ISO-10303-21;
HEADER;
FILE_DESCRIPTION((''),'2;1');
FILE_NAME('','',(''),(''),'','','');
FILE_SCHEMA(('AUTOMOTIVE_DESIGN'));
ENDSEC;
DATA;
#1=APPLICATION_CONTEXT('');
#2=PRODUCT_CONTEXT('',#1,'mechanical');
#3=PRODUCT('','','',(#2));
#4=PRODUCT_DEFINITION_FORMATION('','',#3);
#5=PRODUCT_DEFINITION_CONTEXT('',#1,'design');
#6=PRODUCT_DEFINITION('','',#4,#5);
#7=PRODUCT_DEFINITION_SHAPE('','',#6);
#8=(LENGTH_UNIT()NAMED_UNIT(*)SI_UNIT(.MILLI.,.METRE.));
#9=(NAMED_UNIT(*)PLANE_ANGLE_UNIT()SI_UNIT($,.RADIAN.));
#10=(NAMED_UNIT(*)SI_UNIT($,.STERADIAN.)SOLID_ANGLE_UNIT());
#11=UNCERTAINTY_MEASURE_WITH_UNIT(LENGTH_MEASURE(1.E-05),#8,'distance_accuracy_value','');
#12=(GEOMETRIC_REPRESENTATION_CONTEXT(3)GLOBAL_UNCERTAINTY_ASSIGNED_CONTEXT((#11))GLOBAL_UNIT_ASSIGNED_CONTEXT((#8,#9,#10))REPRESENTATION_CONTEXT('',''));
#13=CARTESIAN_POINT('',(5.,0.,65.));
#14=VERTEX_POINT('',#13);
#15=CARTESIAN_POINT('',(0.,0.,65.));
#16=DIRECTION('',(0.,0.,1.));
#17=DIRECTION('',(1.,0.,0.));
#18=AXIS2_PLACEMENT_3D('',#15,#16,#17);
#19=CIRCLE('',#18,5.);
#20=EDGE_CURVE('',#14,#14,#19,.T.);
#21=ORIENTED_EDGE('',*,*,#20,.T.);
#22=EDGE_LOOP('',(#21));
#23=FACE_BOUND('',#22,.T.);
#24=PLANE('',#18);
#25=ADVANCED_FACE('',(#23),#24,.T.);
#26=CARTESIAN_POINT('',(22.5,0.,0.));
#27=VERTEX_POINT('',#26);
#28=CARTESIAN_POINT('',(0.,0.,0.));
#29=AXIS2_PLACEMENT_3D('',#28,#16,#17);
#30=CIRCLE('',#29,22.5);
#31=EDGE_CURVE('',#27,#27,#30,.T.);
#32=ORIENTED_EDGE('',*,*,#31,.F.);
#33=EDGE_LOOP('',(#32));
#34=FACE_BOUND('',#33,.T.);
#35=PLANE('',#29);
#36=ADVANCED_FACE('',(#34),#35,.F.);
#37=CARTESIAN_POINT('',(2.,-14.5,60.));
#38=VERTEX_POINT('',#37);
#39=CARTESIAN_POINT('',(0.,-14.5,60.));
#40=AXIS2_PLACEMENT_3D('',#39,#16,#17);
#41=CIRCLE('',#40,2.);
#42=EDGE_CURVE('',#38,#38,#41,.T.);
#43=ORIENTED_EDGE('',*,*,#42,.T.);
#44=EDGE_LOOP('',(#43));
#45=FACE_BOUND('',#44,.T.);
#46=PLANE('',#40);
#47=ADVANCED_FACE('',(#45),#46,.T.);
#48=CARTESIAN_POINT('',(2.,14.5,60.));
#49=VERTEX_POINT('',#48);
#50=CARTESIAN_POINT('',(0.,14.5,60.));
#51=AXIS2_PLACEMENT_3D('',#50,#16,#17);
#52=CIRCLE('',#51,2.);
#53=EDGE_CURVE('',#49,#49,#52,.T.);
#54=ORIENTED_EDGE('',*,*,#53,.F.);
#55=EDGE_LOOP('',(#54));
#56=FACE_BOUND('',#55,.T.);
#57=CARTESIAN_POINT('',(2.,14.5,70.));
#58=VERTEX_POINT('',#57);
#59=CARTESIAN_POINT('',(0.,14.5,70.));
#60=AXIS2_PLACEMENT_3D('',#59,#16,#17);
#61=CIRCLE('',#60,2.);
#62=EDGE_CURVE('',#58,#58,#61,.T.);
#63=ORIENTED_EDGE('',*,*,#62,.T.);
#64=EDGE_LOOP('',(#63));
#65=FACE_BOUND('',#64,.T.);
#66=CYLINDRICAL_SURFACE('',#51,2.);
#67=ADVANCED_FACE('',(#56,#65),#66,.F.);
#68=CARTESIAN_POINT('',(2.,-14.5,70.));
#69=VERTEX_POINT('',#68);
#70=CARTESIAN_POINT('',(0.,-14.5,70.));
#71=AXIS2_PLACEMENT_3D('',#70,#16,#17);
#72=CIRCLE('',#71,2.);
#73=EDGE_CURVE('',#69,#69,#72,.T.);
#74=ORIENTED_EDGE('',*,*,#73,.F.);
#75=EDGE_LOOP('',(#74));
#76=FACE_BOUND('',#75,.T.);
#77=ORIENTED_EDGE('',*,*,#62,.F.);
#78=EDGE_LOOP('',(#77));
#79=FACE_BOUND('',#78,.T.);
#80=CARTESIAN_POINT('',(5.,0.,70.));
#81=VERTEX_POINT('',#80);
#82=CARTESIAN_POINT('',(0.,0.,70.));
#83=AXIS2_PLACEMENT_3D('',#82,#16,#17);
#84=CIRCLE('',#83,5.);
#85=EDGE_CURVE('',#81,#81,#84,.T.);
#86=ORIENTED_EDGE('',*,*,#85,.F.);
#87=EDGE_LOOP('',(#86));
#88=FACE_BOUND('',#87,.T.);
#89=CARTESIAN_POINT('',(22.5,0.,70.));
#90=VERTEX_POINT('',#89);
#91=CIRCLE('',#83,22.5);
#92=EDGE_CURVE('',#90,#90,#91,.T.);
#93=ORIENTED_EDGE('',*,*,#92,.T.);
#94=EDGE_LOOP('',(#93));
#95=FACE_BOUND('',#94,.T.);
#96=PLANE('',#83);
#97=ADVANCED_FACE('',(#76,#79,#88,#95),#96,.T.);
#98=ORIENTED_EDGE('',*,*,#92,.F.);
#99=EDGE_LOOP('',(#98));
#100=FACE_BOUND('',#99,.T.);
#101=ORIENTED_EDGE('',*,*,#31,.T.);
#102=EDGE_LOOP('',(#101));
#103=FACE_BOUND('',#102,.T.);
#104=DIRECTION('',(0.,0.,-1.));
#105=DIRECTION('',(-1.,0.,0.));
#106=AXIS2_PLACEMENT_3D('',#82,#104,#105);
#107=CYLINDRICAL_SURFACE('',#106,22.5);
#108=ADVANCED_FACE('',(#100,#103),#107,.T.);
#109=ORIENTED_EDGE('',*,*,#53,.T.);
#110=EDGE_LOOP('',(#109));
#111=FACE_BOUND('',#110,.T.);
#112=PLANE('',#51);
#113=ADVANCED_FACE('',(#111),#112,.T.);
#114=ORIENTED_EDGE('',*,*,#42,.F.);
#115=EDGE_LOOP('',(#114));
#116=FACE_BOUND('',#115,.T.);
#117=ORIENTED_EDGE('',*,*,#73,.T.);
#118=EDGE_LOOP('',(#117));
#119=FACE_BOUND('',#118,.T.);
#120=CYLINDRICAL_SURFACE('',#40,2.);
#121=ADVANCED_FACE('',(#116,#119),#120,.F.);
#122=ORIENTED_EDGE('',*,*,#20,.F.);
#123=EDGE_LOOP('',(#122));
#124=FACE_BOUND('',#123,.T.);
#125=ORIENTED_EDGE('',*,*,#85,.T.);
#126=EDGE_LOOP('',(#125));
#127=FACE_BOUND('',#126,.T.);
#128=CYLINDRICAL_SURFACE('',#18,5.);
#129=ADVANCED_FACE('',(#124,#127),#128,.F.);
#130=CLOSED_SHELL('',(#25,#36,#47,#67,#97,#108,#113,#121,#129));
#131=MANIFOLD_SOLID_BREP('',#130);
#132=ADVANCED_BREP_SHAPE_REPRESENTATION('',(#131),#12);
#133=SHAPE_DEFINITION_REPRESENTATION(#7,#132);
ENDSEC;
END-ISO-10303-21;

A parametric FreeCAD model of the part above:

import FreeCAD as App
import Part
import Sketcher

V = App.Vector

doc = App.newDocument("Part")
body = doc.addObject("PartDesign::Body", "Body")

# Sketch on XY plane
sketch1 = body.newObject("Sketcher::SketchObject", "Sketch")
sketch1.AttachmentSupport = (doc.getObject("XY_Plane"), [""])
sketch1.MapMode = "FlatFace"
sketch1.addGeometry(Part.Circle(V(0, 0, 0), V(0, 0, 1), 22), False)
sketch1.addConstraint([
    Sketcher.Constraint("Coincident", 0, 3, -1, 1),
    Sketcher.Constraint("Diameter", 0, 45.0),
])
pad1 = body.newObject("PartDesign::Pad", "Pad")
pad1.Profile = sketch1
pad1.Length = 70

# Sketch on XY plane
sketch2 = body.newObject("Sketcher::SketchObject", "Sketch001")
sketch2.AttachmentSupport = (doc.getObject("XY_Plane"), [""])
sketch2.MapMode = "FlatFace"
sketch2.AttachmentOffset = App.Placement(V(0, 0, 70), App.Rotation())
sketch2.addGeometry([
    Part.Circle(V(0, 14.5, 0), V(0, 0, 1), 2),
    Part.Circle(V(0, -14.5, 0), V(0, 0, 1), 2),
], False)
sketch2.addConstraint([
    Sketcher.Constraint("Equal", 0, 1),
    Sketcher.Constraint("Symmetric", 0, 3, 1, 3, -1, 1),
    Sketcher.Constraint("PointOnObject", 0, 3, -2),
    Sketcher.Constraint("Diameter", 0, 4.0),
    Sketcher.Constraint("DistanceY", 1, 3, 0, 3, 29.0),
])
pocket1 = body.newObject("PartDesign::Pocket", "Pocket")
pocket1.Profile = sketch2
pocket1.Length = 10

# Sketch on XY plane
sketch3 = body.newObject("Sketcher::SketchObject", "Sketch002")
sketch3.AttachmentSupport = (doc.getObject("XY_Plane"), [""])
sketch3.MapMode = "FlatFace"
sketch3.AttachmentOffset = App.Placement(V(0, 0, 70), App.Rotation())
sketch3.addGeometry(Part.Circle(V(0, 0, 0), V(0, 0, 1), 5), False)
sketch3.addConstraint([
    Sketcher.Constraint("Coincident", 0, 3, -1, 1),
    Sketcher.Constraint("Diameter", 0, 10.0),
])
pocket2 = body.newObject("PartDesign::Pocket", "Pocket001")
pocket2.Profile = sketch3
pocket2.Length = 5

doc.recompute()
